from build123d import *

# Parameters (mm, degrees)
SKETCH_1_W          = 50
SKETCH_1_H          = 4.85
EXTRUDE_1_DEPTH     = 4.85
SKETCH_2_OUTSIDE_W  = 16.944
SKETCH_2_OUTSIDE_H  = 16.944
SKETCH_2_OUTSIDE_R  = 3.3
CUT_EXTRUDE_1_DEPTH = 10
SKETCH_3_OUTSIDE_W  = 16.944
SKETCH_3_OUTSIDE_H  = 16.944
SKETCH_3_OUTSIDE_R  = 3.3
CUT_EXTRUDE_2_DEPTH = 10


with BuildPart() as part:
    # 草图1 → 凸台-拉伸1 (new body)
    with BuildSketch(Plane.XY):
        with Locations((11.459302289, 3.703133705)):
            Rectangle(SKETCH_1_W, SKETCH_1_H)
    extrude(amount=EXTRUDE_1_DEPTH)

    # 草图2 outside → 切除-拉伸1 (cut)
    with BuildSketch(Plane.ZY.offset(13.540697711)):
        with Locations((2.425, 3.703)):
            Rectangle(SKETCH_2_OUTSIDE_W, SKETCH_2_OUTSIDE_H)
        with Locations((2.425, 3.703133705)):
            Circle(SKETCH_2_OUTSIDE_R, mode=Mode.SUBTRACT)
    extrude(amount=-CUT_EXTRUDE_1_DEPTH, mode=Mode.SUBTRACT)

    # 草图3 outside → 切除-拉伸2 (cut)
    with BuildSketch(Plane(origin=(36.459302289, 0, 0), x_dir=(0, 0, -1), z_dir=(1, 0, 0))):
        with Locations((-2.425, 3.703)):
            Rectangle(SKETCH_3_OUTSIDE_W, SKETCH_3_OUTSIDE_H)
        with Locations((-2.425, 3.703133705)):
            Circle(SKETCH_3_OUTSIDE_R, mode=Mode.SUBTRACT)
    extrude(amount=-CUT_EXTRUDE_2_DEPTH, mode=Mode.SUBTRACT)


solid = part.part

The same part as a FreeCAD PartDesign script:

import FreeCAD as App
import Part
import Sketcher

doc = App.newDocument("Part")
body = doc.addObject("PartDesign::Body", "Body")

# Sketch on XY plane
sketch1 = doc.addObject("Sketcher::SketchObject", "Sketch")
body.addObject(sketch1)
sketch1.AttachmentSupport = (doc.XY_Plane, [""])
sketch1.MapMode = "FlatFace"
sketch1.addGeometry([
    Part.LineSegment(App.Vector(-13.540698, 6.128134, 0), App.Vector(-13.540698, 1.278134, 0)),
    Part.LineSegment(App.Vector(-13.540698, 1.278134, 0), App.Vector(36.459302, 1.278134, 0)),
    Part.LineSegment(App.Vector(36.459302, 1.278134, 0), App.Vector(36.459302, 6.128134, 0)),
    Part.LineSegment(App.Vector(36.459302, 6.128134, 0), App.Vector(-13.540698, 6.128134, 0)),
], False)
sketch1.addConstraint([
    Sketcher.Constraint("Coincident", 0, 2, 1, 1),
    Sketcher.Constraint("Coincident", 1, 2, 2, 1),
    Sketcher.Constraint("Coincident", 2, 2, 3, 1),
    Sketcher.Constraint("Coincident", 3, 2, 0, 1),
    Sketcher.Constraint("Vertical", 0),
    Sketcher.Constraint("Horizontal", 1),
    Sketcher.Constraint("Vertical", 2),
    Sketcher.Constraint("Horizontal", 3),
    Sketcher.Constraint("DistanceX", 1, 1, 1, 2, 50.0),
    Sketcher.Constraint("DistanceY", 0, 2, 0, 1, 4.85),
    Sketcher.Constraint("DistanceX", 0, 2, -1, 1, 13.540698),
    Sketcher.Constraint("DistanceY", -1, 1, 0, 2, 1.278134),
])
pad1 = doc.addObject("PartDesign::Pad", "Pad")
body.addObject(pad1)
pad1.Profile = sketch1
pad1.Length = 4.85

# Sketch on YZ plane
sketch2 = doc.addObject("Sketcher::SketchObject", "Sketch001")
body.addObject(sketch2)
sketch2.AttachmentSupport = (doc.YZ_Plane, [""])
sketch2.MapMode = "FlatFace"
sketch2.AttachmentOffset = App.Placement(App.Vector(0, 0, -13.540698), App.Rotation())
sketch2.addGeometry([
    Part.LineSegment(App.Vector(12.175, -6.047, 0), App.Vector(-4.769, -6.047, 0)),  # 0
    Part.LineSegment(App.Vector(-4.769, -6.047, 0), App.Vector(-4.769, 10.897, 0)),  # 1
    Part.LineSegment(App.Vector(-4.769, 10.897, 0), App.Vector(12.175, 10.897, 0)),  # 2
    Part.LineSegment(App.Vector(12.175, 10.897, 0), App.Vector(12.175, -6.047, 0)),  # 3
    Part.Circle(App.Vector(3.703134, 2.425, 0), App.Vector(0, 0, 1), 3.3),  # 4
], False)
sketch2.addConstraint([
    Sketcher.Constraint("Coincident", 0, 2, 1, 1),
    Sketcher.Constraint("Coincident", 1, 2, 2, 1),
    Sketcher.Constraint("Coincident", 2, 2, 3, 1),
    Sketcher.Constraint("Coincident", 3, 2, 0, 1),
    Sketcher.Constraint("Horizontal", 0),
    Sketcher.Constraint("Vertical", 1),
    Sketcher.Constraint("Horizontal", 2),
    Sketcher.Constraint("Vertical", 3),
    Sketcher.Constraint("Equal", 2, 1),
    Sketcher.Constraint("Diameter", 4, 6.6),
    Sketcher.Constraint("DistanceX", 0, 2, 0, 1, 16.944),
    Sketcher.Constraint("DistanceY", -1, 1, 4, 3, 2.425),
    Sketcher.Constraint("DistanceX", 0, 2, -1, 1, 4.769),
    Sketcher.Constraint("DistanceY", 0, 2, -1, 1, 6.047),
    Sketcher.Constraint("DistanceX", -1, 1, 4, 3, 3.703134),
])
pocket1 = doc.addObject("PartDesign::Pocket", "Pocket")
body.addObject(pocket1)
pocket1.Profile = sketch2
pocket1.Length = 10
pocket1.Reversed = True

# Sketch on YZ plane
sketch3 = doc.addObject("Sketcher::SketchObject", "Sketch002")
body.addObject(sketch3)
sketch3.AttachmentSupport = (doc.YZ_Plane, [""])
sketch3.MapMode = "FlatFace"
sketch3.AttachmentOffset = App.Placement(App.Vector(0, 0, 36.459302), App.Rotation())
sketch3.addGeometry([
    Part.LineSegment(App.Vector(12.175, 10.897, 0), App.Vector(-4.769, 10.897, 0)),  # 0
    Part.LineSegment(App.Vector(-4.769, 10.897, 0), App.Vector(-4.769, -6.047, 0)),  # 1
    Part.LineSegment(App.Vector(-4.769, -6.047, 0), App.Vector(12.175, -6.047, 0)),  # 2
    Part.LineSegment(App.Vector(12.175, -6.047, 0), App.Vector(12.175, 10.897, 0)),  # 3
    Part.Circle(App.Vector(3.703134, 2.425, 0), App.Vector(0, 0, 1), 3.3),  # 4
], False)
sketch3.addConstraint([
    Sketcher.Constraint("Coincident", 0, 2, 1, 1),
    Sketcher.Constraint("Coincident", 1, 2, 2, 1),
    Sketcher.Constraint("Coincident", 2, 2, 3, 1),
    Sketcher.Constraint("Coincident", 3, 2, 0, 1),
    Sketcher.Constraint("Horizontal", 0),
    Sketcher.Constraint("Vertical", 1),
    Sketcher.Constraint("Horizontal", 2),
    Sketcher.Constraint("Vertical", 3),
    Sketcher.Constraint("Equal", 2, 1),
    Sketcher.Constraint("Diameter", 4, 6.6),
    Sketcher.Constraint("DistanceX", 0, 2, 0, 1, 16.944),
    Sketcher.Constraint("DistanceY", -1, 1, 4, 3, 2.425),
    Sketcher.Constraint("DistanceX", 0, 2, -1, 1, 4.769),
    Sketcher.Constraint("DistanceY", -1, 1, 0, 2, 10.897),
    Sketcher.Constraint("DistanceX", -1, 1, 4, 3, 3.703134),
])
pocket2 = doc.addObject("PartDesign::Pocket", "Pocket001")
body.addObject(pocket2)
pocket2.Profile = sketch3
pocket2.Length = 10

doc.recompute()
